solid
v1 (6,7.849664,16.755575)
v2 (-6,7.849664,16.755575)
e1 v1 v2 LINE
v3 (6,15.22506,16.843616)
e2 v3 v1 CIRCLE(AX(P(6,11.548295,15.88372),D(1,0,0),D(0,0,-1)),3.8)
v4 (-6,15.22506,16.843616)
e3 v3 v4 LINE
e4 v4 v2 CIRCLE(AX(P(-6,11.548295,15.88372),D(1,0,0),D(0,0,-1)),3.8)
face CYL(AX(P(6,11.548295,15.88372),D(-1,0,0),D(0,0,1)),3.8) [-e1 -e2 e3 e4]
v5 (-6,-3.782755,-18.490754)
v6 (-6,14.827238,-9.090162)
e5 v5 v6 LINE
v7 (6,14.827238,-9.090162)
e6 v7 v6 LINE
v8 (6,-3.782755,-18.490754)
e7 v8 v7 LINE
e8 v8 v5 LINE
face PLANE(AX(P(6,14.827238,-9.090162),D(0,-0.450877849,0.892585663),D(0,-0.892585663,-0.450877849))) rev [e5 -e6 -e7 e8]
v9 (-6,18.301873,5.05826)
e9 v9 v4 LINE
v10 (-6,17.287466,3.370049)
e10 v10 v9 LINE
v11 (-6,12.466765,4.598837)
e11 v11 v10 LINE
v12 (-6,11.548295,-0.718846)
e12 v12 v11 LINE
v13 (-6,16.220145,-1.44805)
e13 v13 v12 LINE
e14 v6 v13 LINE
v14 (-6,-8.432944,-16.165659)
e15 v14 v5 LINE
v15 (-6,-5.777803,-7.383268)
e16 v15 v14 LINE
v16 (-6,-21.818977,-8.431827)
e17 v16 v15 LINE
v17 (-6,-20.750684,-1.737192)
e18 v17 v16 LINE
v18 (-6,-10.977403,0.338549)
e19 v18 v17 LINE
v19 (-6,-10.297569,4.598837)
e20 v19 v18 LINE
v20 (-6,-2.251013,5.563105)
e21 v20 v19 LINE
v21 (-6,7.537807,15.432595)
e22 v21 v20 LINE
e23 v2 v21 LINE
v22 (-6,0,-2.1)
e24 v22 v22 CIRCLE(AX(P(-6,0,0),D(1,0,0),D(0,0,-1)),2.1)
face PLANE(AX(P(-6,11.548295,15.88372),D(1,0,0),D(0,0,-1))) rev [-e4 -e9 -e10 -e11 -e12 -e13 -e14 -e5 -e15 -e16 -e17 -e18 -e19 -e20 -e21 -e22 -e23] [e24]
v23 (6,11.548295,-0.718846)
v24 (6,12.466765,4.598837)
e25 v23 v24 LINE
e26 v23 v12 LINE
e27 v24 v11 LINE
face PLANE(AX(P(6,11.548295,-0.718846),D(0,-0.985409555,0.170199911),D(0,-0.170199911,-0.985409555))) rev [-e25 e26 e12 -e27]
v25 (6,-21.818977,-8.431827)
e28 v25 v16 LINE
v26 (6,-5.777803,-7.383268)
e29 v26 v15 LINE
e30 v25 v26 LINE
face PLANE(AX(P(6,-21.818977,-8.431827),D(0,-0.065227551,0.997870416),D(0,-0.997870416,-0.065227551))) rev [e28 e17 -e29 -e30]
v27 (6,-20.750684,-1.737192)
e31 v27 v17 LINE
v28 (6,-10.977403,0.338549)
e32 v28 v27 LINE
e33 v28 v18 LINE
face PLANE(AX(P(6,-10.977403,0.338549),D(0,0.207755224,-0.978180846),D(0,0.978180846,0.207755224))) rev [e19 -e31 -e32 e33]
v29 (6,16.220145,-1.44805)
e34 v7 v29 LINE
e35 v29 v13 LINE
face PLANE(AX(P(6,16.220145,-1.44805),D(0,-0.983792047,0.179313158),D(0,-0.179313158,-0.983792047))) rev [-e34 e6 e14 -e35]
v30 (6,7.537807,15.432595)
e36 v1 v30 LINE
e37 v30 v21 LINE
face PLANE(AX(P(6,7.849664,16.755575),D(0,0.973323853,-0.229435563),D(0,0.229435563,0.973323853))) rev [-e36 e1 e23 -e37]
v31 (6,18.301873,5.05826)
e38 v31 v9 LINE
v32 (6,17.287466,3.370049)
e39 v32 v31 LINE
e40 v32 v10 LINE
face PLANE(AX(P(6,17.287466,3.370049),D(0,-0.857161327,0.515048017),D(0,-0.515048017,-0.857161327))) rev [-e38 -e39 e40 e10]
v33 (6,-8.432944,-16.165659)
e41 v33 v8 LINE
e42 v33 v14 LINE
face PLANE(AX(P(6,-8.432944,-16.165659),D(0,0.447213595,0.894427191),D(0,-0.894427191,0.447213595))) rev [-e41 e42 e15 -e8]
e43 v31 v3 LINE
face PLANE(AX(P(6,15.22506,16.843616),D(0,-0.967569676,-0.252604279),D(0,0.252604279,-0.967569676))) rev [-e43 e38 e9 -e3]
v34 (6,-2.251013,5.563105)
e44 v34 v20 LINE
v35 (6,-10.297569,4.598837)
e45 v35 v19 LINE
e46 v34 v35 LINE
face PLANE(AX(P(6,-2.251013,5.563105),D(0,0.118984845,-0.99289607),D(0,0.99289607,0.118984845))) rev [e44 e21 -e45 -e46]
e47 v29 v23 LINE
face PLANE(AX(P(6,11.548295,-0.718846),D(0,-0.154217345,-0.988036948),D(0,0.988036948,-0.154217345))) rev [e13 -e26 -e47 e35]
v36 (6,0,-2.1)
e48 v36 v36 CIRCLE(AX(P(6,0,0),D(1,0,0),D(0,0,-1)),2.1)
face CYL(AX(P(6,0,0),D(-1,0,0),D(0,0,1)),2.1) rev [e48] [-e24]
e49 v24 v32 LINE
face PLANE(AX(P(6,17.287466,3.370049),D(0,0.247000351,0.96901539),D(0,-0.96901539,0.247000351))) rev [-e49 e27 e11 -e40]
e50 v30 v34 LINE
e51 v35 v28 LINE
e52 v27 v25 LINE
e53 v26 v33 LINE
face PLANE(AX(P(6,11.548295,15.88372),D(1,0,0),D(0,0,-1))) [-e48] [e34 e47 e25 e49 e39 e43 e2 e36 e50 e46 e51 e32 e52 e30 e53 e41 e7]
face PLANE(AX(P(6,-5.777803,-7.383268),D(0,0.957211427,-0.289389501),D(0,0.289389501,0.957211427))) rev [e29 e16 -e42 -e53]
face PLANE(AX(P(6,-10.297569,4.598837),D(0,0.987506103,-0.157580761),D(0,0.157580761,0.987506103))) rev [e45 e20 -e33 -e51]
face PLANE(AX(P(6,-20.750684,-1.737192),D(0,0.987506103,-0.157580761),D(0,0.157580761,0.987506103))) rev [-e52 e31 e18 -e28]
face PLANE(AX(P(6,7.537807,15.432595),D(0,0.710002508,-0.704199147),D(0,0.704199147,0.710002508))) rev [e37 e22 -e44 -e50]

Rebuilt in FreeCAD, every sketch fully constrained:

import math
import FreeCAD as App
import Part
import Sketcher

doc = App.newDocument("Part")
body = doc.addObject("PartDesign::Body", "Body")

sketch1 = body.newObject("Sketcher::SketchObject", "Sketch")
sketch1.AttachmentSupport = (doc.getObject("YZ_Plane"), [""])
sketch1.MapMode = "FlatFace"
sketch1.addGeometry([
    Part.LineSegment(App.Vector(18.301873, 5.05826, 0), App.Vector(15.22506, 16.843616, 0)),
    Part.ArcOfCircle(Part.Circle(App.Vector(11.548295, 15.88372, 0), App.Vector(0, 0, 1), 3.8), math.radians(14.631674), math.radians(166.736157)),
    Part.LineSegment(App.Vector(7.849664, 16.755575, 0), App.Vector(7.537807, 15.432595, 0)),
    Part.LineSegment(App.Vector(7.537807, 15.432595, 0), App.Vector(-2.251013, 5.563105, 0)),
    Part.LineSegment(App.Vector(-2.251013, 5.563105, 0), App.Vector(-10.297569, 4.598837, 0)),
    Part.LineSegment(App.Vector(-10.297569, 4.598837, 0), App.Vector(-10.977403, 0.338549, 0)),
    Part.LineSegment(App.Vector(-10.977403, 0.338549, 0), App.Vector(-20.750684, -1.737192, 0)),
    Part.LineSegment(App.Vector(-20.750684, -1.737192, 0), App.Vector(-21.818977, -8.431827, 0)),
    Part.LineSegment(App.Vector(-21.818977, -8.431827, 0), App.Vector(-5.777803, -7.383268, 0)),
    Part.LineSegment(App.Vector(-5.777803, -7.383268, 0), App.Vector(-8.432944, -16.165659, 0)),
    Part.LineSegment(App.Vector(-8.432944, -16.165659, 0), App.Vector(-3.782755, -18.490754, 0)),
    Part.LineSegment(App.Vector(-3.782755, -18.490754, 0), App.Vector(14.827238, -9.090162, 0)),
    Part.LineSegment(App.Vector(14.827238, -9.090162, 0), App.Vector(16.220145, -1.44805, 0)),
    Part.LineSegment(App.Vector(16.220145, -1.44805, 0), App.Vector(11.548295, -0.718846, 0)),
    Part.LineSegment(App.Vector(11.548295, -0.718846, 0), App.Vector(12.466765, 4.598837, 0)),
    Part.LineSegment(App.Vector(12.466765, 4.598837, 0), App.Vector(17.287466, 3.370049, 0)),
    Part.LineSegment(App.Vector(17.287466, 3.370049, 0), App.Vector(18.301873, 5.05826, 0)),
    Part.Circle(App.Vector(0, 0, 0), App.Vector(0, 0, 1), 2.1),
], False)
sketch1.addConstraint([
    Sketcher.Constraint("Coincident", 0, 2, 1, 1),
    Sketcher.Constraint("Coincident", 1, 2, 2, 1),
    Sketcher.Constraint("Coincident", 2, 2, 3, 1),
    Sketcher.Constraint("Coincident", 3, 2, 4, 1),
    Sketcher.Constraint("Coincident", 4, 2, 5, 1),
    Sketcher.Constraint("Coincident", 5, 2, 6, 1),
    Sketcher.Constraint("Coincident", 6, 2, 7, 1),
    Sketcher.Constraint("Coincident", 7, 2, 8, 1),
    Sketcher.Constraint("Coincident", 8, 2, 9, 1),
    Sketcher.Constraint("Coincident", 9, 2, 10, 1),
    Sketcher.Constraint("Coincident", 10, 2, 11, 1),
    Sketcher.Constraint("Coincident", 11, 2, 12, 1),
    Sketcher.Constraint("Coincident", 12, 2, 13, 1),
    Sketcher.Constraint("Coincident", 13, 2, 14, 1),
    Sketcher.Constraint("Coincident", 14, 2, 15, 1),
    Sketcher.Constraint("Coincident", 15, 2, 16, 1),
    Sketcher.Constraint("Coincident", 16, 2, 0, 1),
    Sketcher.Constraint("Coincident", 17, 3, -1, 1),
    Sketcher.Constraint("Diameter", 17, 4.2),
    Sketcher.Constraint("Radius", 1, 3.8),
    Sketcher.Constraint("DistanceX", 5, 2, 8, 2, 5.1996),
    Sketcher.Constraint("DistanceY", 12, 2, 15, 2, 4.818099),
    Sketcher.Constraint("DistanceX", 14, 2, 15, 2, 4.820701),
    Sketcher.Constraint("Distance", 0, 12.180369),
    Sketcher.Constraint("Distance", 2, 1.359239),
    Sketcher.Constraint("Distance", 3, 13.900641),
    Sketcher.Constraint("Distance", 5, 4.314189),
    Sketcher.Constraint("Distance", 8, 16.075408),
    Sketcher.Constraint("Distance", 10, 5.19907),
    Sketcher.Constraint("Distance", 11, 20.849531),
    Sketcher.Constraint("Distance", 14, 5.396419),
    Sketcher.Constraint("Distance", 16, 1.969538),
    Sketcher.Constraint("DistanceY", -1, 1, 1, 3, 15.88372),
    Sketcher.Constraint("DistanceX", -1, 1, 0, 2, 15.22506),
    Sketcher.Constraint("DistanceX", 4, 2, -1, 1, 10.297569),
    Sketcher.Constraint("DistanceY", -1, 1, 5, 2, 0.338549),
    Sketcher.Constraint("DistanceY", 9, 2, -1, 1, 16.165659),
    Sketcher.Constraint("DistanceY", 12, 2, -1, 1, 1.44805),
    Sketcher.Constraint("DistanceY", -1, 1, 16, 2, 5.05826),
    Sketcher.Constraint("DistanceX", 1, 2, 1, 3, 3.698631),
    Sketcher.Constraint("DistanceY", 1, 2, 0, 2, 0.088041),
    Sketcher.Constraint("DistanceY", 2, 2, 1, 2, 1.32298),
    Sketcher.Constraint("DistanceX", 3, 2, 2, 2, 9.78882),
    Sketcher.Constraint("DistanceY", 4, 2, 3, 2, 0.964268),
    Sketcher.Constraint("DistanceX", 6, 2, 5, 2, 9.773282),
    Sketcher.Constraint("DistanceY", 6, 2, 5, 2, 2.075741),
    Sketcher.Constraint("DistanceX", 9, 2, 8, 2, 2.655141),
    Sketcher.Constraint("DistanceY", 9, 2, 8, 2, 8.782391),
    Sketcher.Constraint("DistanceY", 9, 2, 7, 2, 7.733831),
    Sketcher.Constraint("DistanceX", 9, 2, 10, 2, 4.65019),
    Sketcher.Constraint("DistanceX", 8, 2, 11, 2, 20.60504),
    Sketcher.Constraint("DistanceX", 1, 3, 12, 2, 4.67185),
    Sketcher.Constraint("DistanceX", 13, 2, 12, 2, 4.67185),
    Sketcher.Constraint("DistanceY", 13, 2, 3, 2, 6.281952),
])
pad1 = body.newObject("PartDesign::Pad", "Pad")
pad1.Profile = sketch1
pad1.Length = 12
pad1.Midplane = True

doc.recompute()
